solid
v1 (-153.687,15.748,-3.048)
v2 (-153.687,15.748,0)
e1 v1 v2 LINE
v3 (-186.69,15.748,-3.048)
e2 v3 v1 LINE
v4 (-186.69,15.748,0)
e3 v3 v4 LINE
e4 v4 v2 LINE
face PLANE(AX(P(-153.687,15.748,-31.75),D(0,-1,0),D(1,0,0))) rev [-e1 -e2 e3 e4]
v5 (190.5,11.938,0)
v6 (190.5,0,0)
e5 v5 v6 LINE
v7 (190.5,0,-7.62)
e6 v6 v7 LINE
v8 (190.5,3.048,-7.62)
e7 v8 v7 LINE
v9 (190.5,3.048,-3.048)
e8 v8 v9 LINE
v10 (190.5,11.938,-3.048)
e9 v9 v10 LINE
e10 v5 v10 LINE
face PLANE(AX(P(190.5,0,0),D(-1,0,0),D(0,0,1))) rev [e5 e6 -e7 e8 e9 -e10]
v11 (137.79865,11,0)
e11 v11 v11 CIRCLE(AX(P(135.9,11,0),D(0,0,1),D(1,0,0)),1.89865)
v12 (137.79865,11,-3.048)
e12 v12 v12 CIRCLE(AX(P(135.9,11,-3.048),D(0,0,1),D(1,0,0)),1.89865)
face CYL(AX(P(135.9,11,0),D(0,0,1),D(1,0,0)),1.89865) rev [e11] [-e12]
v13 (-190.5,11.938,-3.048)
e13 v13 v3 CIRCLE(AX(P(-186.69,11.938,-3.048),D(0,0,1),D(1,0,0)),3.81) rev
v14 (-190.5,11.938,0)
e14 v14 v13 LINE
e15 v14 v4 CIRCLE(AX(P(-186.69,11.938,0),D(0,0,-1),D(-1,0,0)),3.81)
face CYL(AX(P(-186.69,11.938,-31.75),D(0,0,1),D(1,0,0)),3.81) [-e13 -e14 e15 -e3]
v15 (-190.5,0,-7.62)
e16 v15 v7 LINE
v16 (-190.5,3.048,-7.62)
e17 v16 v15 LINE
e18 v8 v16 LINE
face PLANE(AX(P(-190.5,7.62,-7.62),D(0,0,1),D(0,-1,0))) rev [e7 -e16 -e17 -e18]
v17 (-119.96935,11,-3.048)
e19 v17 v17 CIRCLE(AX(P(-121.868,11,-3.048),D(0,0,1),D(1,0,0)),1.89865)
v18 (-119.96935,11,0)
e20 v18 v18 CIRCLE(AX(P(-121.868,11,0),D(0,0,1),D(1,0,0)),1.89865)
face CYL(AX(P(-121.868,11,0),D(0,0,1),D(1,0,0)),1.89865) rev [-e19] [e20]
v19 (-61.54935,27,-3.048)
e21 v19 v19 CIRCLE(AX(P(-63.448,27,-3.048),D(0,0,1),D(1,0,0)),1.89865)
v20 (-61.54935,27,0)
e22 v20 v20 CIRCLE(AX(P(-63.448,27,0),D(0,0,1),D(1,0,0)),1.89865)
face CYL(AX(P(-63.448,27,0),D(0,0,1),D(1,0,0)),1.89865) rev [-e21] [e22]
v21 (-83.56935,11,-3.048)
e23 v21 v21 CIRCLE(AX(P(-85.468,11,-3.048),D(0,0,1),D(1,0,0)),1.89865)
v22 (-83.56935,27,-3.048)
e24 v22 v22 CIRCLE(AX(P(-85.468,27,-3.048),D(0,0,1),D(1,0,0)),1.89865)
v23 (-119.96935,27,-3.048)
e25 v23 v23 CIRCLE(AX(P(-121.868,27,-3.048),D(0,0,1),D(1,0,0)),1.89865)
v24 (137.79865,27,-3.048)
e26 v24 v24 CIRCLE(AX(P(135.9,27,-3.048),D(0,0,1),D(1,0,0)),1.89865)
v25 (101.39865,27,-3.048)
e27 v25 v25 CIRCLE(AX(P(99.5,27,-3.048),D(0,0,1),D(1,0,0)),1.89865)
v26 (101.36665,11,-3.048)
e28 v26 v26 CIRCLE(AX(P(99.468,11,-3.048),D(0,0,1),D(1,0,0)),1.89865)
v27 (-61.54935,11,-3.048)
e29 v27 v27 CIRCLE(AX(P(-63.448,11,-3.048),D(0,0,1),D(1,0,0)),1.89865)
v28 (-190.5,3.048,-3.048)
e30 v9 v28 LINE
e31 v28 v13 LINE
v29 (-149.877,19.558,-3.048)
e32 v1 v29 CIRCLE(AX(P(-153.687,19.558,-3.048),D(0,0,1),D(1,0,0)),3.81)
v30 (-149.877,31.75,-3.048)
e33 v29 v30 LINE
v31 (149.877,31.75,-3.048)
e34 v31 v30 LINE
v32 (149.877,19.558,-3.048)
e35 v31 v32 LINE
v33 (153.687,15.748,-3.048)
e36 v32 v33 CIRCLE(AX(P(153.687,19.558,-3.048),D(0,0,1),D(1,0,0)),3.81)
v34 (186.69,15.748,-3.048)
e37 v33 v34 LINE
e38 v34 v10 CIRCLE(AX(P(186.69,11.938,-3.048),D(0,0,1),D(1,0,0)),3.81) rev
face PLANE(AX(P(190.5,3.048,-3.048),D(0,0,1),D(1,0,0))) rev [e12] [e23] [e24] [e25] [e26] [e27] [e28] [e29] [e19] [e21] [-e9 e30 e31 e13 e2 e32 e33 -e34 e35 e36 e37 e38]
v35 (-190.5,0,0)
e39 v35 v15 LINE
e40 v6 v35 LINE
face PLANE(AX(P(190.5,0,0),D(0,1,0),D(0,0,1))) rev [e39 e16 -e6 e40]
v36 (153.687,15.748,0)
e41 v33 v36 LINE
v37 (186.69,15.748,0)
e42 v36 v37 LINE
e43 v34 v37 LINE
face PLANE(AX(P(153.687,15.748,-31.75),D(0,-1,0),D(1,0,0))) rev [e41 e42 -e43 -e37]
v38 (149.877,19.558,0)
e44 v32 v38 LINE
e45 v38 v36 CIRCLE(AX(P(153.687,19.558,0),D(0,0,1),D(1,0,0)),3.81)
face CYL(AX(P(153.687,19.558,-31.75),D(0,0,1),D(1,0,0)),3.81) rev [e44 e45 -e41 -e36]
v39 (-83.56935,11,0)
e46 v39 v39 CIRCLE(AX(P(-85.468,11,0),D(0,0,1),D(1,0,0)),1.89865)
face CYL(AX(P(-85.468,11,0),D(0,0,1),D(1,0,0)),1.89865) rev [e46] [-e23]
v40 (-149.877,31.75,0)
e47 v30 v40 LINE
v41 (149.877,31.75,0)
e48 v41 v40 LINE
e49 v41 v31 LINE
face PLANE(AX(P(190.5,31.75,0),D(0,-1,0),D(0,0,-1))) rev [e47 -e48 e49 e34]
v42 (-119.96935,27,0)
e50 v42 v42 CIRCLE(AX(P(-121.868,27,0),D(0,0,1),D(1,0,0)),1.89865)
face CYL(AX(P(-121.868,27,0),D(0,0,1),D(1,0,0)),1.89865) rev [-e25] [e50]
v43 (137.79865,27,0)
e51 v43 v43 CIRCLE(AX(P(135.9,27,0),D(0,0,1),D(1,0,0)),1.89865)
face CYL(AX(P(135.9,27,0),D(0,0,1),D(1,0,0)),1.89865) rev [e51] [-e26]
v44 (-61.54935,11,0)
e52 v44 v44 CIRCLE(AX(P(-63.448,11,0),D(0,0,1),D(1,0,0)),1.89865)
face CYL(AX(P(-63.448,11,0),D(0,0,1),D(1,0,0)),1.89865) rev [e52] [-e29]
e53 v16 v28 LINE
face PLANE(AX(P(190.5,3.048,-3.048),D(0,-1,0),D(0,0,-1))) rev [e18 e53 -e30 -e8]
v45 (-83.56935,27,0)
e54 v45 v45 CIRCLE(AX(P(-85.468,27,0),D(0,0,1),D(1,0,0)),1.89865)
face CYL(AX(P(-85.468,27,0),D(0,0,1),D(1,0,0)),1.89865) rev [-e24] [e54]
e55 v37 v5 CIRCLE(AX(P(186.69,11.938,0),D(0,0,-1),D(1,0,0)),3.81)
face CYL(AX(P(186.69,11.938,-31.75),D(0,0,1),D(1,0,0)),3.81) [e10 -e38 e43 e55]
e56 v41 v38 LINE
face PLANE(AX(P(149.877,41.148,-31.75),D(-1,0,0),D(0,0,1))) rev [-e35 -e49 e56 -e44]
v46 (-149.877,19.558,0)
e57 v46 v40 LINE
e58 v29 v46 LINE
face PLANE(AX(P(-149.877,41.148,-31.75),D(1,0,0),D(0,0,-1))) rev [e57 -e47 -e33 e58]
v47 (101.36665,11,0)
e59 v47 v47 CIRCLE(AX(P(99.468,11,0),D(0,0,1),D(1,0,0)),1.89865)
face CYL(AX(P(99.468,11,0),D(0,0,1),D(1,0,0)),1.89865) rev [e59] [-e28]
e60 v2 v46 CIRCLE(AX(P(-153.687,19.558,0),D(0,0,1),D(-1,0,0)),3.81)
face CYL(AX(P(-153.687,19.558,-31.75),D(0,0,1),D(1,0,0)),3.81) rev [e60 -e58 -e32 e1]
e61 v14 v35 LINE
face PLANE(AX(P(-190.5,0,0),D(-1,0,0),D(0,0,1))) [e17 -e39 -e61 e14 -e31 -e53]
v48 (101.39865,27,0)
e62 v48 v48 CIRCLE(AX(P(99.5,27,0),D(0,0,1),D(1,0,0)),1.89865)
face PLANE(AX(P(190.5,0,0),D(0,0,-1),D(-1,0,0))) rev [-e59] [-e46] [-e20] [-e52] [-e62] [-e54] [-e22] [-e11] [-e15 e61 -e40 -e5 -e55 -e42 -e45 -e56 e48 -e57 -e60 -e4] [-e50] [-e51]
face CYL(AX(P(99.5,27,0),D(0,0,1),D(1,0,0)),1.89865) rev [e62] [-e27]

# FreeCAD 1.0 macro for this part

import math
import FreeCAD as App
import Part
import Sketcher
from FreeCAD import Vector
Q = App.Units.Quantity

doc = App.newDocument("Part")
params = doc.addObject("Spreadsheet::Sheet", "Params")
for row, (alias, value) in enumerate([
    ("sketch1_width", "0.12 in"),
    ("sketch1_width2", "1.13 in"),
    ("pad1_length", "15 in"),
    ("hole_diameter", "0.1495 in"),
    ("sketch3_height", "2 in"),
    ("sketch3_radius", "0.15 in"),
    ("sketch3_width", "0.3 in"),
    ("sketch4_height", "1 in"),
    ("sketch4_width", "0.6 in"),
    ("hole2_diameter", "0.1495 in"),
], start=1):
    params.set(f"A{row}", alias)
    params.set(f"B{row}", "=" + value)
    params.setAlias(f"B{row}", alias)

body = doc.addObject("PartDesign::Body", "Body")

sketch1 = body.newObject("Sketcher::SketchObject", "Sketch")
sketch1.AttachmentSupport = (doc.getObject("YZ_Plane"), [""])
sketch1.MapMode = "FlatFace"
sketch1.addGeometry([
    Part.LineSegment(Vector(0, 0, 0), Vector(0, -31.75, 0)),
    Part.LineSegment(Vector(0, -31.75, 0), Vector(3.048, -31.75, 0)),
    Part.LineSegment(Vector(3.048, -31.75, 0), Vector(3.048, -3.048, 0)),
    Part.LineSegment(Vector(3.048, -3.048, 0), Vector(31.75, -3.048, 0)),
    Part.LineSegment(Vector(31.75, -3.048, 0), Vector(31.75, 0, 0)),
    Part.LineSegment(Vector(31.75, 0, 0), Vector(0, 0, 0)),
], False)
sketch1.addConstraint([
    Sketcher.Constraint("Coincident", 0, 2, 1, 1),
    Sketcher.Constraint("Coincident", 1, 2, 2, 1),
    Sketcher.Constraint("Coincident", 2, 2, 3, 1),
    Sketcher.Constraint("Coincident", 3, 2, 4, 1),
    Sketcher.Constraint("Coincident", 4, 2, 5, 1),
    Sketcher.Constraint("Coincident", 5, 2, 0, 1),
    Sketcher.Constraint("Vertical", 0),
    Sketcher.Constraint("Horizontal", 1),
    Sketcher.Constraint("Vertical", 2),
    Sketcher.Constraint("Horizontal", 3),
    Sketcher.Constraint("Vertical", 4),
    Sketcher.Constraint("Horizontal", 5),
    Sketcher.Constraint("Coincident", 5, 2, -1, 1),
    Sketcher.Constraint("Equal", 5, 0),
    Sketcher.Constraint("Equal", 3, 2),
    Sketcher.Constraint("DistanceX", 1, 1, 1, 2, Q("0.12 in")),
    Sketcher.Constraint("DistanceX", 3, 1, 3, 2, Q("1.13 in")),
])
sketch1.setExpression("Constraints[15]", "Params.sketch1_width")
sketch1.setExpression("Constraints[16]", "Params.sketch1_width2")
pad1 = body.newObject("PartDesign::Pad", "Pad")
pad1.Profile = sketch1
pad1.setExpression("Length", "Params.pad1_length")
pad1.Midplane = True

sketch2 = body.newObject("Sketcher::SketchObject", "Sketch001")
sketch2.AttachmentSupport = (doc.getObject("XY_Plane"), [""])
sketch2.MapMode = "FlatFace"
sketch2.addGeometry([
    Part.Circle(Vector(135.9, 27, 0), Vector(0, 0, 1), 1.89865),
    Part.Circle(Vector(135.9, 11, 0), Vector(0, 0, 1), 1.89865),
    Part.Circle(Vector(99.5, 27, 0), Vector(0, 0, 1), 1.89865),
    Part.Circle(Vector(99.468, 11, 0), Vector(0, 0, 1), 1.89865),
    Part.Circle(Vector(-121.868, 27, 0), Vector(0, 0, 1), 1.89865),
    Part.Circle(Vector(-121.868, 11, 0), Vector(0, 0, 1), 1.89865),
    Part.Circle(Vector(-85.468, 11, 0), Vector(0, 0, 1), 1.89865),
    Part.Circle(Vector(-85.468, 27, 0), Vector(0, 0, 1), 1.89865),
], False)
sketch2.addConstraint([
    Sketcher.Constraint("Equal", 0, 1),
    Sketcher.Constraint("Equal", 1, 2),
    Sketcher.Constraint("Equal", 2, 3),
    Sketcher.Constraint("Equal", 3, 4),
    Sketcher.Constraint("Equal", 4, 5),
    Sketcher.Constraint("Equal", 5, 6),
    Sketcher.Constraint("Equal", 6, 7),
    Sketcher.Constraint("Horizontal", 0, 3, 2, 3),
    Sketcher.Constraint("Horizontal", 1, 3, 3, 3),
    Sketcher.Constraint("Horizontal", 2, 3, 4, 3),
    Sketcher.Constraint("Horizontal", 3, 3, 5, 3),
    Sketcher.Constraint("Horizontal", 5, 3, 6, 3),
    Sketcher.Constraint("Horizontal", 4, 3, 7, 3),
    Sketcher.Constraint("Vertical", 0, 3, 1, 3),
    Sketcher.Constraint("Vertical", 4, 3, 5, 3),
    Sketcher.Constraint("Vertical", 6, 3, 7, 3),
    Sketcher.Constraint("Diameter", 0, Q("0.1495 in")),
    Sketcher.Constraint("DistanceX", -1, 1, 0, 3, 135.9),
    Sketcher.Constraint("DistanceY", -1, 1, 0, 3, 27.0),
    Sketcher.Constraint("DistanceY", -1, 1, 1, 3, 11.0),
    Sketcher.Constraint("DistanceX", -1, 1, 2, 3, 99.5),
    Sketcher.Constraint("DistanceX", -1, 1, 3, 3, 99.468),
    Sketcher.Constraint("DistanceX", 4, 3, -1, 1, 121.868),
    Sketcher.Constraint("DistanceX", 6, 3, -1, 1, 85.468),
])
doc.recompute()
hole = body.newObject("PartDesign::Hole", "Hole")
hole.Profile = sketch2
hole.ThreadType = "None"
hole.setExpression("Diameter", "Params.hole_diameter")
hole.DepthType = "ThroughAll"

sketch3 = body.newObject("Sketcher::SketchObject", "Sketch002")
sketch3.AttachmentSupport = (doc.getObject("XY_Plane"), [""])
sketch3.MapMode = "FlatFace"
sketch3.addGeometry([
    Part.LineSegment(Vector(149.877, 41.148, 0), Vector(149.877, 19.558, 0)),
    Part.ArcOfCircle(Part.Circle(Vector(153.687, 19.558, 0), Vector(0, 0, 1), 3.81), math.radians(-180), math.radians(-90)),
    Part.LineSegment(Vector(153.687, 15.748, 0), Vector(186.69, 15.748, 0)),
    Part.ArcOfCircle(Part.Circle(Vector(186.69, 11.938, 0), Vector(0, 0, 1), 3.81), math.radians(0), math.radians(90)),
    Part.LineSegment(Vector(190.5, 11.938, 0), Vector(190.5, -9.652, 0)),
    Part.LineSegment(Vector(190.5, -9.652, 0), Vector(198.12, -9.652, 0)),
    Part.LineSegment(Vector(198.12, -9.652, 0), Vector(198.12, 41.148, 0)),
    Part.LineSegment(Vector(198.12, 41.148, 0), Vector(149.877, 41.148, 0)),
    Part.LineSegment(Vector(-149.877, 41.148, 0), Vector(-198.12, 41.148, 0)),
    Part.LineSegment(Vector(-198.12, 41.148, 0), Vector(-198.12, -9.652, 0)),
    Part.LineSegment(Vector(-198.12, -9.652, 0), Vector(-190.5, -9.652, 0)),
    Part.LineSegment(Vector(-190.5, -9.652, 0), Vector(-190.5, 11.938, 0)),
    Part.ArcOfCircle(Part.Circle(Vector(-186.69, 11.938, 0), Vector(0, 0, 1), 3.81), math.radians(90), math.radians(180)),
    Part.LineSegment(Vector(-186.69, 15.748, 0), Vector(-153.687, 15.748, 0)),
    Part.ArcOfCircle(Part.Circle(Vector(-153.687, 19.558, 0), Vector(0, 0, 1), 3.81), math.radians(-90), math.radians(0)),
    Part.LineSegment(Vector(-149.877, 19.558, 0), Vector(-149.877, 41.148, 0)),
], False)
sketch3.addConstraint([
    Sketcher.Constraint("Tangent", 0, 2, 1, 1),
    Sketcher.Constraint("Tangent", 1, 2, 2, 1),
    Sketcher.Constraint("Tangent", 2, 2, 3, 2),
    Sketcher.Constraint("Tangent", 3, 1, 4, 1),
    Sketcher.Constraint("Coincident", 4, 2, 5, 1),
    Sketcher.Constraint("Coincident", 5, 2, 6, 1),
    Sketcher.Constraint("Coincident", 6, 2, 7, 1),
    Sketcher.Constraint("Coincident", 7, 2, 0, 1),
    Sketcher.Constraint("Coincident", 8, 2, 9, 1),
    Sketcher.Constraint("Coincident", 9, 2, 10, 1),
    Sketcher.Constraint("Coincident", 10, 2, 11, 1),
    Sketcher.Constraint("Tangent", 11, 2, 12, 2),
    Sketcher.Constraint("Tangent", 12, 1, 13, 1),
    Sketcher.Constraint("Tangent", 13, 2, 14, 1),
    Sketcher.Constraint("Tangent", 14, 2, 15, 1),
    Sketcher.Constraint("Coincident", 15, 2, 8, 1),
    Sketcher.Constraint("Vertical", 0),
    Sketcher.Constraint("Horizontal", 2),
    Sketcher.Constraint("Vertical", 4),
    Sketcher.Constraint("Horizontal", 5),
    Sketcher.Constraint("Vertical", 6),
    Sketcher.Constraint("Horizontal", 7),
    Sketcher.Constraint("Horizontal", 8),
    Sketcher.Constraint("Vertical", 9),
    Sketcher.Constraint("Horizontal", 10),
    Sketcher.Constraint("Vertical", 11),
    Sketcher.Constraint("Horizontal", 13),
    Sketcher.Constraint("Vertical", 15),
    Sketcher.Constraint("Equal", 1, 3),
    Sketcher.Constraint("Equal", 3, 12),
    Sketcher.Constraint("Equal", 12, 14),
    Sketcher.Constraint("Symmetric", 3, 3, 12, 3, -2),
    Sketcher.Constraint("Symmetric", 6, 2, 8, 2, -2),
    Sketcher.Constraint("Horizontal", 5, 2, 9, 2),
    Sketcher.Constraint("Equal", 7, 8),
    Sketcher.Constraint("Equal", 0, 4),
    Sketcher.Constraint("DistanceY", 6, 1, 6, 2, Q("2 in")),
    Sketcher.Constraint("Radius", 1, Q("0.15 in")),
    Sketcher.Constraint("DistanceX", 5, 1, 5, 2, Q("0.3 in")),
    Sketcher.Constraint("DistanceX", -1, 1, 3, 1, Q("7.5 in")),
    Sketcher.Constraint("DistanceY", -1, 1, 1, 3, Q("0.77 in")),
    Sketcher.Constraint("DistanceX", 2, 1, 2, 2, 33.003),
])
sketch3.setExpression("Constraints[36]", "Params.sketch3_height")
sketch3.setExpression("Constraints[37]", "Params.sketch3_radius")
sketch3.setExpression("Constraints[38]", "Params.sketch3_width")
pocket1 = body.newObject("PartDesign::Pocket", "Pocket")
pocket1.Profile = sketch3
pocket1.Type = "ThroughAll"

sketch4 = body.newObject("Sketcher::SketchObject", "Sketch003")
sketch4.AttachmentSupport = (doc.getObject("YZ_Plane"), [""])
sketch4.MapMode = "FlatFace"
sketch4.addGeometry([
    Part.LineSegment(Vector(7.62, -7.62, 0), Vector(-7.62, -7.62, 0)),
    Part.LineSegment(Vector(-7.62, -7.62, 0), Vector(-7.62, -33.02, 0)),
    Part.LineSegment(Vector(-7.62, -33.02, 0), Vector(7.62, -33.02, 0)),
    Part.LineSegment(Vector(7.62, -33.02, 0), Vector(7.62, -7.62, 0)),
], False)
sketch4.addConstraint([
    Sketcher.Constraint("Coincident", 0, 2, 1, 1),
    Sketcher.Constraint("Coincident", 1, 2, 2, 1),
    Sketcher.Constraint("Coincident", 2, 2, 3, 1),
    Sketcher.Constraint("Coincident", 3, 2, 0, 1),
    Sketcher.Constraint("Horizontal", 0),
    Sketcher.Constraint("Vertical", 1),
    Sketcher.Constraint("Horizontal", 2),
    Sketcher.Constraint("Vertical", 3),
    Sketcher.Constraint("DistanceY", 1, 2, 1, 1, Q("1 in")),
    Sketcher.Constraint("DistanceX", 0, 2, 0, 1, Q("0.6 in")),
    Sketcher.Constraint("DistanceX", 0, 2, -1, 1, Q("0.3 in")),
    Sketcher.Constraint("DistanceY", 0, 2, -1, 1, Q("0.3 in")),
])
sketch4.setExpression("Constraints[8]", "Params.sketch4_height")
sketch4.setExpression("Constraints[9]", "Params.sketch4_width")
pocket2 = body.newObject("PartDesign::Pocket", "Pocket001")
pocket2.Profile = sketch4
pocket2.Type = "ThroughAll"
pocket2.Midplane = True

sketch5 = body.newObject("Sketcher::SketchObject", "Sketch004")
sketch5.AttachmentSupport = (doc.getObject("XY_Plane"), [""])
sketch5.MapMode = "FlatFace"
sketch5.addGeometry([
    Part.Circle(Vector(-63.448, 27, 0), Vector(0, 0, 1), 1.89865),
    Part.Circle(Vector(-63.448, 11, 0), Vector(0, 0, 1), 1.89865),
], False)
sketch5.addConstraint([
    Sketcher.Constraint("Equal", 0, 1),
    Sketcher.Constraint("Vertical", 0, 3, 1, 3),
    Sketcher.Constraint("Diameter", 0, Q("0.1495 in")),
    Sketcher.Constraint("DistanceX", 0, 3, -1, 1, 63.448),
    Sketcher.Constraint("DistanceY", -1, 1, 0, 3, 27.0),
    Sketcher.Constraint("DistanceY", -1, 1, 1, 3, 11.0),
])
doc.recompute()
hole2 = body.newObject("PartDesign::Hole", "Hole001")
hole2.Profile = sketch5
hole2.ThreadType = "None"
hole2.setExpression("Diameter", "Params.hole2_diameter")
hole2.DepthType = "ThroughAll"

doc.recompute()
